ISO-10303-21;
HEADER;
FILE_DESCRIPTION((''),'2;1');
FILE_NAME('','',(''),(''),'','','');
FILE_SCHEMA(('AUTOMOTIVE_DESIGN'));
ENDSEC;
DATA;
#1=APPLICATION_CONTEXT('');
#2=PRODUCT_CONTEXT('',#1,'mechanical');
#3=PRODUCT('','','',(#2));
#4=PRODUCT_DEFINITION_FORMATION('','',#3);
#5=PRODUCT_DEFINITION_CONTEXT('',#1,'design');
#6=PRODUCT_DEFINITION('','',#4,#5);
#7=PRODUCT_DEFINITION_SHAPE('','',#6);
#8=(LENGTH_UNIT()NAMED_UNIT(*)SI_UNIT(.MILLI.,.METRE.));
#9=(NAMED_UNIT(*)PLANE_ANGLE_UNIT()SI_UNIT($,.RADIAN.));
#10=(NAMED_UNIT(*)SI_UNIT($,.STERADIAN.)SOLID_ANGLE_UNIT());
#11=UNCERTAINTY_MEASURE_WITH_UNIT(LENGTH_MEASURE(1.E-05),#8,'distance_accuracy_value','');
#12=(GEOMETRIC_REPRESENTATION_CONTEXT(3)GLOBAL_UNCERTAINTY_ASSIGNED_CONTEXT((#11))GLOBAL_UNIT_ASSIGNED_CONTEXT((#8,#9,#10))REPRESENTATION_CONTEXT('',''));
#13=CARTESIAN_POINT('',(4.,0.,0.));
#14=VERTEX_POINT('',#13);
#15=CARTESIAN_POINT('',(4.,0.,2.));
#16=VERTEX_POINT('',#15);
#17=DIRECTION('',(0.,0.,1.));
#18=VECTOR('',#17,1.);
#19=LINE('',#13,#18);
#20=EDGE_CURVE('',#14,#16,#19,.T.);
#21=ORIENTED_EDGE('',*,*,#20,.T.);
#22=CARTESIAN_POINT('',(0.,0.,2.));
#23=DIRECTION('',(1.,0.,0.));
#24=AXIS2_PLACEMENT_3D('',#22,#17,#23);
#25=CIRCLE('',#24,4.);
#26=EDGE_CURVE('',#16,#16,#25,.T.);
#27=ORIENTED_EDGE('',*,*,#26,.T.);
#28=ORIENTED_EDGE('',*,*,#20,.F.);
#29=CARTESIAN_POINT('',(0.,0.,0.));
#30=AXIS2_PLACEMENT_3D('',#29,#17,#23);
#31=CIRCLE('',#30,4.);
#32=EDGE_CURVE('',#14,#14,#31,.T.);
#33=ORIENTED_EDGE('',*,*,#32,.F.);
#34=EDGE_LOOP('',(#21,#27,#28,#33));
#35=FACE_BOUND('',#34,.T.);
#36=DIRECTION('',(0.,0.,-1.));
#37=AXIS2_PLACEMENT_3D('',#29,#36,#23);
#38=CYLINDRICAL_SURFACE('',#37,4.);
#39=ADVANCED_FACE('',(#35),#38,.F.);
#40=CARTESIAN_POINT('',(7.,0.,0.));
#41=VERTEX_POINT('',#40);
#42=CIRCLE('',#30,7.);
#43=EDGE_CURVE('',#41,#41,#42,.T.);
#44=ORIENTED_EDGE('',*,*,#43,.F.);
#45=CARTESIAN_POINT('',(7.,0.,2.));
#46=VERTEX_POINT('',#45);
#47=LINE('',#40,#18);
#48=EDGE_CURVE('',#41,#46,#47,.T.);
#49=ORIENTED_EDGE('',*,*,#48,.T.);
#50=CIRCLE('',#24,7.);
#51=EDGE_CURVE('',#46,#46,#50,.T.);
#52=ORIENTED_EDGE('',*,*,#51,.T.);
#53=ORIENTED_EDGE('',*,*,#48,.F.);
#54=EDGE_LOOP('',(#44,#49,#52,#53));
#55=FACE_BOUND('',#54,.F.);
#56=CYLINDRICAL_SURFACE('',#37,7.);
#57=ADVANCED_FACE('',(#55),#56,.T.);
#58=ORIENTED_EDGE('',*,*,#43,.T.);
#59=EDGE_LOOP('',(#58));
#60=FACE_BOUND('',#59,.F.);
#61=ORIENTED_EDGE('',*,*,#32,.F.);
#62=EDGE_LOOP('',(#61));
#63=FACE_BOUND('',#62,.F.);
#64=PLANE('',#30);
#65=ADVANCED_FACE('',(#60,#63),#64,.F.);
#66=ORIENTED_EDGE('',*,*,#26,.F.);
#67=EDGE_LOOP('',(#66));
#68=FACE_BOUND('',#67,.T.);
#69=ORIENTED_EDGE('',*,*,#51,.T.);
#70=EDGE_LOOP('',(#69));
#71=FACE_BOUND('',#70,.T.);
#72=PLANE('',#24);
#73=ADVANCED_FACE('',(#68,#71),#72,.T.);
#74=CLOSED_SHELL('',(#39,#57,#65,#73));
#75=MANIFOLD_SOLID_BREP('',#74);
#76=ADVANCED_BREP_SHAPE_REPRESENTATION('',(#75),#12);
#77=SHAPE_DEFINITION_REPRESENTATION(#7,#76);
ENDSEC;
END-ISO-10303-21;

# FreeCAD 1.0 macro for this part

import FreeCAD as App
import Part
import Sketcher
from FreeCAD import Vector
Q = App.Units.Quantity

doc = App.newDocument("Part")
body = doc.addObject("PartDesign::Body", "Body")

sketch1 = body.newObject("Sketcher::SketchObject", "Sketch")
sketch1.AttachmentSupport = (doc.getObject("XY_Plane"), [""])
sketch1.MapMode = "FlatFace"
sketch1.addGeometry([
    Part.Circle(Vector(0, 0, 0), Vector(0, 0, 1), 7),
    Part.Circle(Vector(0, 0, 0), Vector(0, 0, 1), 4),
], False)
sketch1.addConstraint([
    Sketcher.Constraint("Coincident", 0, 3, -1, 1),
    Sketcher.Constraint("Coincident", 1, 3, -1, 1),
    Sketcher.Constraint("Diameter", 0, Q("14 mm")),
    Sketcher.Constraint("Diameter", 1, Q("8 mm")),
])
pad1 = body.newObject("PartDesign::Pad", "Pad")
pad1.Profile = sketch1
pad1.Length = 2

doc.recompute()
